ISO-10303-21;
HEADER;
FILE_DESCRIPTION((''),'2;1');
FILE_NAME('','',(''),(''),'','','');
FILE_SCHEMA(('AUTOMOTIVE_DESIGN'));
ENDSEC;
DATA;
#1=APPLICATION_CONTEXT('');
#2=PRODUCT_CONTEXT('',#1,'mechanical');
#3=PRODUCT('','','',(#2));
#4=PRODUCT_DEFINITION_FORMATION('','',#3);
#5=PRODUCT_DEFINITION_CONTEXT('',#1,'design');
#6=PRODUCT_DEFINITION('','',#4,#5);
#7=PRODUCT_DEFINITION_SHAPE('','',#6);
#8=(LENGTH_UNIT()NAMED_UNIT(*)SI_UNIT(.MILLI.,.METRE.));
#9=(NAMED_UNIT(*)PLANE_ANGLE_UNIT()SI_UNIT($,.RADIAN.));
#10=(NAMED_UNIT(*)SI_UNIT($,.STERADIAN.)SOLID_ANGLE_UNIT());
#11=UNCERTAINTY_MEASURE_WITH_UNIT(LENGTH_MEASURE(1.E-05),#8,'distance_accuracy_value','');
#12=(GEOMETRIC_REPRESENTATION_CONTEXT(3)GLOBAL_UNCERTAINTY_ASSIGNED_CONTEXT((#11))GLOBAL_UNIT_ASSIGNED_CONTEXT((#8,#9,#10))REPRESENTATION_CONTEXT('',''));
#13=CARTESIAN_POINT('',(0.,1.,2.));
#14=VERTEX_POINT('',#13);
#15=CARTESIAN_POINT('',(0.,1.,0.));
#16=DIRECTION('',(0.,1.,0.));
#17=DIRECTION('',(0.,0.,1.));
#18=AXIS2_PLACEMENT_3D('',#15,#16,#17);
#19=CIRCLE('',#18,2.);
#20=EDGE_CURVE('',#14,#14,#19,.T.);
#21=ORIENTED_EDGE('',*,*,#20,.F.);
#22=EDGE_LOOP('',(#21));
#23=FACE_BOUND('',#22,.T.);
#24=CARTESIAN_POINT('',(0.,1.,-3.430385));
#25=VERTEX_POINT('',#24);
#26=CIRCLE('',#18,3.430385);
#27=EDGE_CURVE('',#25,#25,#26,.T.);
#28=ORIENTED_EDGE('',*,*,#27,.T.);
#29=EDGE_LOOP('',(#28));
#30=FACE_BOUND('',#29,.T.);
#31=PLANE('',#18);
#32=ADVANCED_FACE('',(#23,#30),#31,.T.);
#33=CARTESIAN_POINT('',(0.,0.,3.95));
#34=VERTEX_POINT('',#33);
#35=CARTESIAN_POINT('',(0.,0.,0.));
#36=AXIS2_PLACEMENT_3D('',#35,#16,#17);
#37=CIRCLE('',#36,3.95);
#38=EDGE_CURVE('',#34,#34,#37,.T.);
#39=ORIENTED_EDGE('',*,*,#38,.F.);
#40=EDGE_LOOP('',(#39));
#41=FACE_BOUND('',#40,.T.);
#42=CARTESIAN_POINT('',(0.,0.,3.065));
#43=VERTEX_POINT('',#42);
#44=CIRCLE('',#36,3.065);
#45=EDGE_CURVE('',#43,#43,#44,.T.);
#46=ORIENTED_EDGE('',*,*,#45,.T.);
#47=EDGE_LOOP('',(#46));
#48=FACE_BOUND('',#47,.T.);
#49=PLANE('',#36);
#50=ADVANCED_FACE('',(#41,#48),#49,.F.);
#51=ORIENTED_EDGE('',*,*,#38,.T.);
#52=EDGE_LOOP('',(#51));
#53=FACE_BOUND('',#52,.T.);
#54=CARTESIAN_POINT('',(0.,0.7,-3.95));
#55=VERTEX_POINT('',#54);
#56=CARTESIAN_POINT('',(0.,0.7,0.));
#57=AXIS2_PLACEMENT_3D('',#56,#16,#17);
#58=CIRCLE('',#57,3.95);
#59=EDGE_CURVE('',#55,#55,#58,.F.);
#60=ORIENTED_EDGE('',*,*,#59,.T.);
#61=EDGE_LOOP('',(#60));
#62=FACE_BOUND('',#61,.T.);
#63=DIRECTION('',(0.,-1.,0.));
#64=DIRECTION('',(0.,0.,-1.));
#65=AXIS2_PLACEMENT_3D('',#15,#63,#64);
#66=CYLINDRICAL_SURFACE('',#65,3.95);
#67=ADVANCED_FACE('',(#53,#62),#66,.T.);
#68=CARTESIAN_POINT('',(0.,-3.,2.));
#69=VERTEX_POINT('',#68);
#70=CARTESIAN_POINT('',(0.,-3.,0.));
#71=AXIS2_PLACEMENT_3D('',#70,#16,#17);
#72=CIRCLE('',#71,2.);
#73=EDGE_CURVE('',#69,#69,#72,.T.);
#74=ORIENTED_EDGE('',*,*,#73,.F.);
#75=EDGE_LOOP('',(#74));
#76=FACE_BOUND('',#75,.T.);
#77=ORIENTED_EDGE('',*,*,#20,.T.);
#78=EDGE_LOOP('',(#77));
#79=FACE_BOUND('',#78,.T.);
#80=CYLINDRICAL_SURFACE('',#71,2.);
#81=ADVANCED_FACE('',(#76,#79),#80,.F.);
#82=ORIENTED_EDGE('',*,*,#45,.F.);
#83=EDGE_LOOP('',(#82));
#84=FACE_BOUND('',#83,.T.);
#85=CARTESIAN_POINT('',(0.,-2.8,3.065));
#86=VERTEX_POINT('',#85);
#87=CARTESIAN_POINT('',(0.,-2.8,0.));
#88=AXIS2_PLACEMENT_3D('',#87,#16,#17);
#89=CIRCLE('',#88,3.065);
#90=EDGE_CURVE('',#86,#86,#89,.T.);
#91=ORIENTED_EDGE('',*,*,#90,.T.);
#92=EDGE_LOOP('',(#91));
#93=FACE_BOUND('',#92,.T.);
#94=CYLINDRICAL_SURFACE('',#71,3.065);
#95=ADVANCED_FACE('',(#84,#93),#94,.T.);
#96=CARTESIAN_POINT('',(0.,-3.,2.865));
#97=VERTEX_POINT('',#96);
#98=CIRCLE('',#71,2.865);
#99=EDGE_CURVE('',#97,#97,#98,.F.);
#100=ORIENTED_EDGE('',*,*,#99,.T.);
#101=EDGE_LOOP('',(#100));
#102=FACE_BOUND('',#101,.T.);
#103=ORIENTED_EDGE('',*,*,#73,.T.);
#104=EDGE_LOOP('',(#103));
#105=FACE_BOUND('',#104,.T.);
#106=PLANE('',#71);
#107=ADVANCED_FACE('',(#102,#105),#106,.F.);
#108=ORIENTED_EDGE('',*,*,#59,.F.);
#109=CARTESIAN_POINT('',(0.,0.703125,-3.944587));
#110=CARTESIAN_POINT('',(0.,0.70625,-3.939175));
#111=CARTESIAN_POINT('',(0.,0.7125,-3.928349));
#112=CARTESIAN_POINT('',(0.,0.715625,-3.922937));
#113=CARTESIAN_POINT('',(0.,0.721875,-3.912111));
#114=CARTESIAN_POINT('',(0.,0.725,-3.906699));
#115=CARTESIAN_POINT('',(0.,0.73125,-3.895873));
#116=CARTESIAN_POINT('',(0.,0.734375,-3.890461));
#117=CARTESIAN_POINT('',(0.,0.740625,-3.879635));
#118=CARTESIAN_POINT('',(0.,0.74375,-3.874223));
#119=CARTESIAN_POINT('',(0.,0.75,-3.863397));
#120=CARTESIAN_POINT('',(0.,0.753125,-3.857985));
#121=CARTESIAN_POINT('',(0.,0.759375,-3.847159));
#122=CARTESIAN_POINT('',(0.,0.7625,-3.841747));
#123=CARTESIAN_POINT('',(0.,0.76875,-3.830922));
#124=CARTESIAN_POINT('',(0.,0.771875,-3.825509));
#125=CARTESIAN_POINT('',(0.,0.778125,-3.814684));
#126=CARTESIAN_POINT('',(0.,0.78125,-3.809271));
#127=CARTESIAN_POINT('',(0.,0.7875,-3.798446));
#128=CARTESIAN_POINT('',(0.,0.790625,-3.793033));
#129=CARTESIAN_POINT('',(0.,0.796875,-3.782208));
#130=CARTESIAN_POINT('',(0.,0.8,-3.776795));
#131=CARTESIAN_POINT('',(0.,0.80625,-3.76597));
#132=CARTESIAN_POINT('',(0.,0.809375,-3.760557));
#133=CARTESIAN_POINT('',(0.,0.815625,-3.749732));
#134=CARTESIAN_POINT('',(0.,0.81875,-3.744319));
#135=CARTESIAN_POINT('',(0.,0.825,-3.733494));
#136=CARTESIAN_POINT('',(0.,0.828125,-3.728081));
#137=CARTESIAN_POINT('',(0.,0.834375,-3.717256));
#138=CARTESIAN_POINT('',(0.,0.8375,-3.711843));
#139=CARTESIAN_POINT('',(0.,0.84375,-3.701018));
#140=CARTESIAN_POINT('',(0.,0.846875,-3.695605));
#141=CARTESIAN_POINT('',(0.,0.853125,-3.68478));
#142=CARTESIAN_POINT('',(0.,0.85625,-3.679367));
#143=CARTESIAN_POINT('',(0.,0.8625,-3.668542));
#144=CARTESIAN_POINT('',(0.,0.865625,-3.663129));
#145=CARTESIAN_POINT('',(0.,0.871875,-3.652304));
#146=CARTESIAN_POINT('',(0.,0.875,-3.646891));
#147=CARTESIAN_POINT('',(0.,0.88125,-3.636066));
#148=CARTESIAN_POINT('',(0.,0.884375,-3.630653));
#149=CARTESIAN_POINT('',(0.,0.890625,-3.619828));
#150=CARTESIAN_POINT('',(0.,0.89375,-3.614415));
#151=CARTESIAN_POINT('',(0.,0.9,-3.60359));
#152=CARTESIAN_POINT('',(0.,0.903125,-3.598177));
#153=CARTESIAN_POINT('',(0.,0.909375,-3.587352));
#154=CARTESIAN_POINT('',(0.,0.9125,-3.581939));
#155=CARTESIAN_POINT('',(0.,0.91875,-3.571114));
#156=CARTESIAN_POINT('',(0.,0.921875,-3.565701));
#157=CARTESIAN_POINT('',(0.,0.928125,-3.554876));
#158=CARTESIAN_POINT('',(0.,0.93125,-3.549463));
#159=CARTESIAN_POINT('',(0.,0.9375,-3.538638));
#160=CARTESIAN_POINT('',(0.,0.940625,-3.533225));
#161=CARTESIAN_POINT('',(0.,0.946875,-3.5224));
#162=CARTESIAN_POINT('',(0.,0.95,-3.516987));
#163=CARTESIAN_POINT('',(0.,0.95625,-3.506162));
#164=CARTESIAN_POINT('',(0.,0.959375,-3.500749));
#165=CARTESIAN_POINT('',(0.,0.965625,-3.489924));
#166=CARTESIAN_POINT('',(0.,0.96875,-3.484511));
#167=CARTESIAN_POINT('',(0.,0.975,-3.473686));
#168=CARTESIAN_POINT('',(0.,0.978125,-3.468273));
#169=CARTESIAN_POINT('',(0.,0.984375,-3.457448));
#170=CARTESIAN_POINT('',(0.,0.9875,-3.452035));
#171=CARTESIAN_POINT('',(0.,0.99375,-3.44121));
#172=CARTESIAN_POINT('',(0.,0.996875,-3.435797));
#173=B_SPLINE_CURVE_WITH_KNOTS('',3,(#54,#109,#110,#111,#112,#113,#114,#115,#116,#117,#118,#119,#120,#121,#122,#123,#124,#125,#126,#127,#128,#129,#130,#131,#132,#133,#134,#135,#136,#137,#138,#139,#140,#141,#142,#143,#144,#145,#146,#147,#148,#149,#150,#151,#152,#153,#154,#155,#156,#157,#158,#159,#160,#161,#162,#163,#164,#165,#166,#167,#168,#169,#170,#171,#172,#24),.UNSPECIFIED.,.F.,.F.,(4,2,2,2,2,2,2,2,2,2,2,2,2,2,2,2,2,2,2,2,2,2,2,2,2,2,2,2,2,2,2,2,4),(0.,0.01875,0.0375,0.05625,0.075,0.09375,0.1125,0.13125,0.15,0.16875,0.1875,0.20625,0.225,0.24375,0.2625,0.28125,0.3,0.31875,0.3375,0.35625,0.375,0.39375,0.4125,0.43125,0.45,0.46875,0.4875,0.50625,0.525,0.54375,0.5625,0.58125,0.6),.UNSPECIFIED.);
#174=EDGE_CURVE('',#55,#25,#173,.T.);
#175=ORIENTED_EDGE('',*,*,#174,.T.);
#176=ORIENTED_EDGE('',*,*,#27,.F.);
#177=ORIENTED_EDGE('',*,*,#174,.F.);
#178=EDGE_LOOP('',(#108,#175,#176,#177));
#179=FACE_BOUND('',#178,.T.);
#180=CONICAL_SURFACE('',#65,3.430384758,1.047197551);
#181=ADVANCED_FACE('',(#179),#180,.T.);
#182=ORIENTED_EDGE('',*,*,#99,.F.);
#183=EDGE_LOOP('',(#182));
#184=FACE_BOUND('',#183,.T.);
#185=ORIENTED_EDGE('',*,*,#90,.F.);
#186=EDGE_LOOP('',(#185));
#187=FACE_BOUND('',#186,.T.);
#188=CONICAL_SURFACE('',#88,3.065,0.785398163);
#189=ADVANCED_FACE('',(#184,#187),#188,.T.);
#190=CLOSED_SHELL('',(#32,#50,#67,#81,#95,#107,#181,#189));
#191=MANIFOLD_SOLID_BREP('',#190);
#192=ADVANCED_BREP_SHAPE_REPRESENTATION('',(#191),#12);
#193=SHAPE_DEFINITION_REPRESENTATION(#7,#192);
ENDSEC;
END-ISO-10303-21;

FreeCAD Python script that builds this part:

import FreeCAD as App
import Part
import Sketcher

V = App.Vector


def edges_at(feature, points):
    """Names of the edges that pass closest to the given points."""
    edges = feature.Shape.Edges
    near = lambda p: min(range(len(edges)), key=lambda i: edges[i].distToShape(Part.Vertex(*p))[0])
    return sorted({f"Edge{near(p) + 1}" for p in points})

doc = App.newDocument("Part")
body = doc.addObject("PartDesign::Body", "Body")

# Sketch on XZ plane
sketch1 = body.newObject("Sketcher::SketchObject", "Sketch")
sketch1.AttachmentSupport = (doc.getObject("XZ_Plane"), [""])
sketch1.MapMode = "FlatFace"
sketch1.addGeometry(Part.Circle(V(0, 0, 0), V(0, 0, 1), 3.065), False)
sketch1.addGeometry(Part.Circle(V(0, 0, 0), V(0, 0, 1), 2), False)
sketch1.addConstraint(Sketcher.Constraint("Coincident", 0, 3, -1, 1))
sketch1.addConstraint(Sketcher.Constraint("Coincident", 1, 3, -1, 1))
sketch1.addConstraint(Sketcher.Constraint("Diameter", 1, 4.0))
sketch1.addConstraint(Sketcher.Constraint("Diameter", 0, 6.13))
pad1 = body.newObject("PartDesign::Pad", "Pad")
pad1.Profile = sketch1
pad1.Length = 3

# Sketch on XZ plane
sketch2 = body.newObject("Sketcher::SketchObject", "Sketch001")
sketch2.AttachmentSupport = (doc.getObject("XZ_Plane"), [""])
sketch2.MapMode = "FlatFace"
sketch2.AttachmentOffset = App.Placement(V(0, 0, -1), App.Rotation())
sketch2.addGeometry(Part.Circle(V(0, 0, 0), V(0, 0, 1), 3.95), False)
sketch2.addGeometry(Part.Circle(V(0, 0, 0), V(0, 0, 1), 2), False)
sketch2.addConstraint(Sketcher.Constraint("Coincident", 0, 3, -1, 1))
sketch2.addConstraint(Sketcher.Constraint("Coincident", 1, 3, -1, 1))
sketch2.addConstraint(Sketcher.Constraint("Diameter", 1, 4.0))
sketch2.addConstraint(Sketcher.Constraint("Diameter", 0, 7.9))
pad2 = body.newObject("PartDesign::Pad", "Pad001")
pad2.Profile = sketch2
pad2.Length = 1
doc.recompute()

chamfer = body.newObject("PartDesign::Chamfer", "Chamfer")
chamfer.Base = (pad2, edges_at(pad2, [(0, 1, -3.95)]))
chamfer.ChamferType = "Two distances"
chamfer.Size = 0.3
chamfer.Size2 = 0.519615
doc.recompute()

chamfer2 = body.newObject("PartDesign::Chamfer", "Chamfer001")
chamfer2.Base = (chamfer, edges_at(chamfer, [(0, -3, -3.065)]))
chamfer2.Size = 0.2

doc.recompute()
